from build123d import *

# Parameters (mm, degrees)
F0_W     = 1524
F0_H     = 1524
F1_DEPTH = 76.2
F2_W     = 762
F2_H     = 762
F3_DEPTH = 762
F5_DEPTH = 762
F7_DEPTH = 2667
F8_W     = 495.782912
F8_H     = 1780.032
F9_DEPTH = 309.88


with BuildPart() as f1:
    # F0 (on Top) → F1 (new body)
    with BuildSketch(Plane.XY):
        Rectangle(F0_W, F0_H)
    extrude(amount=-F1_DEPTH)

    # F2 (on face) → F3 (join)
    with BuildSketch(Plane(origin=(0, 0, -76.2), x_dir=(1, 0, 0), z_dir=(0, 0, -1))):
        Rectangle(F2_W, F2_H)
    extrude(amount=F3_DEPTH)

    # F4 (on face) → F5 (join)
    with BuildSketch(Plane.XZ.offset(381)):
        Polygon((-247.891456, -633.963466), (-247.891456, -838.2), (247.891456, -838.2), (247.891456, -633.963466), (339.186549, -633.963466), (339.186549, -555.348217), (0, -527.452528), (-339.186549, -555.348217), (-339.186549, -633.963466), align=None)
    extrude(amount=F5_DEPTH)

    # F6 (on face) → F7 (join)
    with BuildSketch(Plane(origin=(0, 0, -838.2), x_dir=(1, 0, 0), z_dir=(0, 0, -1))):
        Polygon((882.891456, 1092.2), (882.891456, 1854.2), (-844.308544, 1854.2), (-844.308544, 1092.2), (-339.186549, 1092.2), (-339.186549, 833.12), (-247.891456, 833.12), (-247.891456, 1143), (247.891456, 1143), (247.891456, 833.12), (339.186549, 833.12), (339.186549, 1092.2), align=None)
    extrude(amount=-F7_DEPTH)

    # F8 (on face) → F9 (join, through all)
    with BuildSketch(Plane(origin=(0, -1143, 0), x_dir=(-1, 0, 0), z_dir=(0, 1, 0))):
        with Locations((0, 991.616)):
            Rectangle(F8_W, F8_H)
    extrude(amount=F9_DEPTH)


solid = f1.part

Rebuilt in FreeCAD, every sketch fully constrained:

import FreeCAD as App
import Part
import Sketcher
from FreeCAD import Vector
Q = App.Units.Quantity


def add_polygon(sketch, points):
    """Adds a closed chain of lines whose ends are joined by coincident constraints."""
    first, n = sketch.GeometryCount, len(points)
    for a, b in zip(points, points[1:] + points[:1]):
        sketch.addGeometry(Part.LineSegment(App.Vector(*a, 0), App.Vector(*b, 0)), False)
    for i in range(n):
        sketch.addConstraint(Sketcher.Constraint("Coincident", first + i, 2, first + (i + 1) % n, 1))

doc = App.newDocument("Part")
body = doc.addObject("PartDesign::Body", "Body")

# Sketch on XY plane
sketch1 = body.newObject("Sketcher::SketchObject", "Sketch")
sketch1.AttachmentSupport = (doc.getObject("XY_Plane"), [""])
sketch1.MapMode = "FlatFace"
add_polygon(sketch1, [(-762, 762), (-762, -762), (762, -762), (762, 762)])  # lines 0-3
sketch1.addConstraint(Sketcher.Constraint("Vertical", 0))
sketch1.addConstraint(Sketcher.Constraint("Horizontal", 1))
sketch1.addConstraint(Sketcher.Constraint("Vertical", 2))
sketch1.addConstraint(Sketcher.Constraint("Horizontal", 3))
sketch1.addConstraint(Sketcher.Constraint("Symmetric", 0, 2, 2, 2, -1, 1))
sketch1.addConstraint(Sketcher.Constraint("Equal", 3, 0))
sketch1.addConstraint(Sketcher.Constraint("DistanceX", 1, 1, 1, 2, Q("60 in")))
pad1 = body.newObject("PartDesign::Pad", "Pad")
pad1.Profile = sketch1
pad1.Length = Q("3 in")
pad1.Reversed = True

# Sketch on XY plane
sketch2 = body.newObject("Sketcher::SketchObject", "Sketch001")
sketch2.AttachmentSupport = (doc.getObject("XY_Plane"), [""])
sketch2.MapMode = "FlatFace"
sketch2.AttachmentOffset = App.Placement(Vector(0, 0, -3 * 25.4), App.Rotation())
add_polygon(sketch2, [(-381, -381), (-381, 381), (381, 381), (381, -381)])  # lines 0-3
sketch2.addConstraint(Sketcher.Constraint("Vertical", 0))
sketch2.addConstraint(Sketcher.Constraint("Horizontal", 1))
sketch2.addConstraint(Sketcher.Constraint("Vertical", 2))
sketch2.addConstraint(Sketcher.Constraint("Horizontal", 3))
sketch2.addConstraint(Sketcher.Constraint("Symmetric", 0, 2, 2, 2, -1, 1))
sketch2.addConstraint(Sketcher.Constraint("Equal", 3, 0))
sketch2.addConstraint(Sketcher.Constraint("DistanceX", 1, 1, 1, 2, Q("30 in")))
pad2 = body.newObject("PartDesign::Pad", "Pad001")
pad2.Profile = sketch2
pad2.Length = Q("30 in")
pad2.Reversed = True

# Sketch on XZ plane
sketch3 = body.newObject("Sketcher::SketchObject", "Sketch002")
sketch3.AttachmentSupport = (doc.getObject("XZ_Plane"), [""])
sketch3.MapMode = "FlatFace"
sketch3.AttachmentOffset = App.Placement(Vector(0, 0, 15 * 25.4), App.Rotation())
add_polygon(sketch3, [(-248, -634), (-248, -838), (248, -838), (248, -634), (339, -634), (339, -555), (0, -527), (-339, -555), (-339, -634)])  # lines 0-8
sketch3.addConstraint(Sketcher.Constraint("Vertical", 0))
sketch3.addConstraint(Sketcher.Constraint("Horizontal", 1))
sketch3.addConstraint(Sketcher.Constraint("Vertical", 2))
sketch3.addConstraint(Sketcher.Constraint("Horizontal", 3))
sketch3.addConstraint(Sketcher.Constraint("Vertical", 4))
sketch3.addConstraint(Sketcher.Constraint("Vertical", 7))
sketch3.addConstraint(Sketcher.Constraint("Horizontal", 8))
sketch3.addConstraint(Sketcher.Constraint("Symmetric", 4, 2, 6, 2, -2))
sketch3.addConstraint(Sketcher.Constraint("Symmetric", 2, 2, 8, 2, -2))
sketch3.addConstraint(Sketcher.Constraint("PointOnObject", 5, 2, -2))
sketch3.addConstraint(Sketcher.Constraint("DistanceY", 0, 2, -1, 1, Q("33 in")))
sketch3.addConstraint(Sketcher.Constraint("DistanceX", 1, 1, 1, 2, 495.782912))
sketch3.addConstraint(Sketcher.Constraint("DistanceY", 4, 1, 4, 2, 78.615249))
sketch3.addConstraint(Sketcher.Constraint("DistanceX", 6, 2, 4, 2, 678.373098))
sketch3.addConstraint(Sketcher.Constraint("DistanceY", 0, 2, 0, 1, 204.236534))
sketch3.addConstraint(Sketcher.Constraint("DistanceY", 5, 2, -1, 1, 527.452528))
pad3 = body.newObject("PartDesign::Pad", "Pad002")
pad3.Profile = sketch3
pad3.Length = Q("30 in")

# Sketch on XY plane
sketch4 = body.newObject("Sketcher::SketchObject", "Sketch003")
sketch4.AttachmentSupport = (doc.getObject("XY_Plane"), [""])
sketch4.MapMode = "FlatFace"
sketch4.AttachmentOffset = App.Placement(Vector(0, 0, -33 * 25.4), App.Rotation())
add_polygon(sketch4, [(883, -1092), (883, -1854), (-844, -1854), (-844, -1092), (-339, -1092), (-339, -833), (-248, -833), (-248, -1143), (248, -1143), (248, -833), (339, -833), (339, -1092)])  # lines 0-11
sketch4.addConstraint(Sketcher.Constraint("Vertical", 0))
sketch4.addConstraint(Sketcher.Constraint("Horizontal", 1))
sketch4.addConstraint(Sketcher.Constraint("Vertical", 2))
sketch4.addConstraint(Sketcher.Constraint("Horizontal", 3))
sketch4.addConstraint(Sketcher.Constraint("Vertical", 4))
sketch4.addConstraint(Sketcher.Constraint("Horizontal", 5))
sketch4.addConstraint(Sketcher.Constraint("Vertical", 6))
sketch4.addConstraint(Sketcher.Constraint("Horizontal", 7))
sketch4.addConstraint(Sketcher.Constraint("Vertical", 8))
sketch4.addConstraint(Sketcher.Constraint("Horizontal", 9))
sketch4.addConstraint(Sketcher.Constraint("Vertical", 10))
sketch4.addConstraint(Sketcher.Constraint("Horizontal", 11))
sketch4.addConstraint(Sketcher.Constraint("Symmetric", 5, 2, 8, 2, -2))
sketch4.addConstraint(Sketcher.Constraint("Symmetric", 3, 2, 10, 2, -2))
sketch4.addConstraint(Sketcher.Constraint("DistanceX", 1, 2, 1, 1, Q("68 in")))
sketch4.addConstraint(Sketcher.Constraint("DistanceY", 0, 2, 0, 1, Q("30 in")))
sketch4.addConstraint(Sketcher.Constraint("DistanceY", 4, 1, 4, 2, Q("10.2 in")))
sketch4.addConstraint(Sketcher.Constraint("DistanceY", 6, 2, 6, 1, Q("12.2 in")))
sketch4.addConstraint(Sketcher.Constraint("DistanceY", 0, 2, -1, 1, Q("73 in")))
sketch4.addConstraint(Sketcher.Constraint("DistanceX", 7, 2, 0, 2, Q("25 in")))
sketch4.addConstraint(Sketcher.Constraint("DistanceX", 7, 1, 7, 2, 495.782912))
sketch4.addConstraint(Sketcher.Constraint("DistanceX", 4, 2, 9, 2, 678.373098))
pad4 = body.newObject("PartDesign::Pad", "Pad003")
pad4.Profile = sketch4
pad4.Length = Q("105 in")

# Sketch on XZ plane
sketch5 = body.newObject("Sketcher::SketchObject", "Sketch004")
sketch5.AttachmentSupport = (doc.getObject("XZ_Plane"), [""])
sketch5.MapMode = "FlatFace"
sketch5.AttachmentOffset = App.Placement(Vector(0, 0, 45 * 25.4), App.Rotation())
add_polygon(sketch5, [(248, 1882), (248, 102), (-248, 102), (-248, 1882)])  # lines 0-3
sketch5.addConstraint(Sketcher.Constraint("Vertical", 0))
sketch5.addConstraint(Sketcher.Constraint("Horizontal", 1))
sketch5.addConstraint(Sketcher.Constraint("Vertical", 2))
sketch5.addConstraint(Sketcher.Constraint("Horizontal", 3))
sketch5.addConstraint(Sketcher.Constraint("DistanceY", -1, 1, 0, 2, Q("4 in")))
sketch5.addConstraint(Sketcher.Constraint("DistanceY", 0, 2, 0, 1, Q("70.08 in")))
sketch5.addConstraint(Sketcher.Constraint("DistanceX", 1, 2, 1, 1, 495.782912))
sketch5.addConstraint(Sketcher.Constraint("DistanceX", -1, 1, 0, 2, 247.891456))
pad5 = body.newObject("PartDesign::Pad", "Pad004")
pad5.Profile = sketch5
pad5.Length = Q("12.2 in")
pad5.Reversed = True

doc.recompute()
